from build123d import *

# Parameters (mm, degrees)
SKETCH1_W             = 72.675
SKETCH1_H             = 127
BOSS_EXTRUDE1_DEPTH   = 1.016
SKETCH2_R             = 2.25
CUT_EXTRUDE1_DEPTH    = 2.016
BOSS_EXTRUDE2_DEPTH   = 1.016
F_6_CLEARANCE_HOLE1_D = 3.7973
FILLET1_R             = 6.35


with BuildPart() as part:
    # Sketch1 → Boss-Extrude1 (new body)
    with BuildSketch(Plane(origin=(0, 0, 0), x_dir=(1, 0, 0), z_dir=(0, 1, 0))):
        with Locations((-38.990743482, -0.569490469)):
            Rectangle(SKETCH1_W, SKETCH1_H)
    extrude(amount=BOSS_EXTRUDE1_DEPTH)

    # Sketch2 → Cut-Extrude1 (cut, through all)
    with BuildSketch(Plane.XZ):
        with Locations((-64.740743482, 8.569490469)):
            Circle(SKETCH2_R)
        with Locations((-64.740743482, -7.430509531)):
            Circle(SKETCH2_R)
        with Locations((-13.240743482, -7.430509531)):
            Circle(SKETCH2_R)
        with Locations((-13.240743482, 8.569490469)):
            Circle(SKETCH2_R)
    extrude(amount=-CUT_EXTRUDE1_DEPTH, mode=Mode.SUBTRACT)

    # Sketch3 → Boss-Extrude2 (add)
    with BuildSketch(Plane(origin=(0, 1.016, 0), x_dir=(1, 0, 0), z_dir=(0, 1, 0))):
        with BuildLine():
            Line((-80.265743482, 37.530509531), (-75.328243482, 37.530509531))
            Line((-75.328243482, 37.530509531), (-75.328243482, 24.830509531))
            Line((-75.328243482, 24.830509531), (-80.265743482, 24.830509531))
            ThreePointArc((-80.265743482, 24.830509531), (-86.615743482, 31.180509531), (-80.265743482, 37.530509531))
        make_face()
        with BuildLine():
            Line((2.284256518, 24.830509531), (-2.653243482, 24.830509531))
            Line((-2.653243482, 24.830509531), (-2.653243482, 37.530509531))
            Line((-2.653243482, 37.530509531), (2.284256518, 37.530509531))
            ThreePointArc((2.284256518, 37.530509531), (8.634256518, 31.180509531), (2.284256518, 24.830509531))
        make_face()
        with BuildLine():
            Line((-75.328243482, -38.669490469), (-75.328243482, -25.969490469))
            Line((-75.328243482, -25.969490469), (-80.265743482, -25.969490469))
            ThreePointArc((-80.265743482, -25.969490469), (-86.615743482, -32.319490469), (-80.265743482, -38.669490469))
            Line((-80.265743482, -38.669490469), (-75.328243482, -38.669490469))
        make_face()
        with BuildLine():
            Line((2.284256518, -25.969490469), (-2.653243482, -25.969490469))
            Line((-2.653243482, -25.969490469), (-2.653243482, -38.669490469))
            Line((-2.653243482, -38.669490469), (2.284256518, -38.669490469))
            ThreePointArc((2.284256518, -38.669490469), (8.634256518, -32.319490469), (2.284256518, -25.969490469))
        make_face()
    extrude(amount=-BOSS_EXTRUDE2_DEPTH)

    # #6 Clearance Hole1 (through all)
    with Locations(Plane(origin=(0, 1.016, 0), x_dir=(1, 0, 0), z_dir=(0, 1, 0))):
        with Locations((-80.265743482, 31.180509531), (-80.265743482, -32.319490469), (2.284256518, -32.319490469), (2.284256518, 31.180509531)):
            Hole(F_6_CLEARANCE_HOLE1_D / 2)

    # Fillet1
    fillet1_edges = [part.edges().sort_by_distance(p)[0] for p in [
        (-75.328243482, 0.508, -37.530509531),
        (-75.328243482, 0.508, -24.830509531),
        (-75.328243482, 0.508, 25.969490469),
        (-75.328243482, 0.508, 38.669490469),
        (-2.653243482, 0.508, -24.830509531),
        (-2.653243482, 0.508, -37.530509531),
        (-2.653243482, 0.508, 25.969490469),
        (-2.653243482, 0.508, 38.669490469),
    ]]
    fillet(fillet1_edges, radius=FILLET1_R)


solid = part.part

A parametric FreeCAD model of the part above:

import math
import FreeCAD as App
import Part
import Sketcher
from FreeCAD import Vector
Q = App.Units.Quantity


def edges_at(feature, points):
    """Names of the edges that pass closest to the given points."""
    edges = feature.Shape.Edges
    near = lambda p: min(range(len(edges)), key=lambda i: edges[i].distToShape(Part.Vertex(*p))[0])
    return sorted({f"Edge{near(p) + 1}" for p in points})

doc = App.newDocument("Part")
params = doc.addObject("Spreadsheet::Sheet", "Params")
for row, (alias, value) in enumerate([
    ("sketch1_height", "5 in"),
    ("pad1_length", "0.04 in"),
    ("sketch3_radius", "0.25 in"),
    ("pad2_length", "0.04 in"),
    ("hole_diameter", "0.1495 in"),
    ("fillet_radius", "0.25 in"),
], start=1):
    params.set(f"A{row}", alias)
    params.set(f"B{row}", "=" + value)
    params.setAlias(f"B{row}", alias)

body = doc.addObject("PartDesign::Body", "Body")

# Sketch on XZ plane
sketch1 = body.newObject("Sketcher::SketchObject", "Sketch")
sketch1.AttachmentSupport = (doc.getObject("XZ_Plane"), [""])
sketch1.MapMode = "FlatFace"
sketch1.addGeometry(Part.LineSegment(Vector(-75, -63, 0), Vector(-75, 64, 0)), False)
sketch1.addGeometry(Part.LineSegment(Vector(-75, 64, 0), Vector(-3, 64, 0)), False)
sketch1.addGeometry(Part.LineSegment(Vector(-3, 64, 0), Vector(-3, -63, 0)), False)
sketch1.addGeometry(Part.LineSegment(Vector(-3, -63, 0), Vector(-75, -63, 0)), False)
sketch1.addConstraint(Sketcher.Constraint("Coincident", 0, 2, 1, 1))
sketch1.addConstraint(Sketcher.Constraint("Coincident", 1, 2, 2, 1))
sketch1.addConstraint(Sketcher.Constraint("Coincident", 2, 2, 3, 1))
sketch1.addConstraint(Sketcher.Constraint("Coincident", 3, 2, 0, 1))
sketch1.addConstraint(Sketcher.Constraint("Vertical", 0))
sketch1.addConstraint(Sketcher.Constraint("Horizontal", 1))
sketch1.addConstraint(Sketcher.Constraint("Vertical", 2))
sketch1.addConstraint(Sketcher.Constraint("Horizontal", 3))
sketch1.addConstraint(Sketcher.Constraint("DistanceY", 0, 1, 0, 2, Q("5 in")))
sketch1.addConstraint(Sketcher.Constraint("DistanceX", 1, 1, 1, 2, Q("72.675 mm")))
sketch1.addConstraint(Sketcher.Constraint("DistanceY", -1, 1, 0, 2, Q("64.06949 mm")))
sketch1.addConstraint(Sketcher.Constraint("DistanceX", 0, 2, -1, 1, Q("75.328243 mm")))
sketch1.setExpression("Constraints[8]", "Params.sketch1_height")
pad1 = body.newObject("PartDesign::Pad", "Pad")
pad1.Profile = sketch1
pad1.setExpression("Length", "Params.pad1_length")
pad1.Reversed = True

# Sketch on XZ plane
sketch2 = body.newObject("Sketcher::SketchObject", "Sketch001")
sketch2.AttachmentSupport = (doc.getObject("XZ_Plane"), [""])
sketch2.MapMode = "FlatFace"
sketch2.addGeometry(Part.Circle(Vector(-64.7, 8.6, 0), Vector(0, 0, 1), 2.2), False)
sketch2.addGeometry(Part.Circle(Vector(-64.7, -7.4, 0), Vector(0, 0, 1), 2.2), False)
sketch2.addGeometry(Part.Circle(Vector(-13.2, -7.4, 0), Vector(0, 0, 1), 2.2), False)
sketch2.addGeometry(Part.Circle(Vector(-13.2, 8.6, 0), Vector(0, 0, 1), 2.2), False)
sketch2.addConstraint(Sketcher.Constraint("Equal", 0, 1))
sketch2.addConstraint(Sketcher.Constraint("Equal", 1, 2))
sketch2.addConstraint(Sketcher.Constraint("Equal", 2, 3))
sketch2.addConstraint(Sketcher.Constraint("Horizontal", 1, 3, 2, 3))
sketch2.addConstraint(Sketcher.Constraint("Horizontal", 0, 3, 3, 3))
sketch2.addConstraint(Sketcher.Constraint("Vertical", 0, 3, 1, 3))
sketch2.addConstraint(Sketcher.Constraint("Vertical", 2, 3, 3, 3))
sketch2.addConstraint(Sketcher.Constraint("Diameter", 0, Q("4.5 mm")))
sketch2.addConstraint(Sketcher.Constraint("DistanceY", 1, 3, 0, 3, Q("16 mm")))
sketch2.addConstraint(Sketcher.Constraint("DistanceX", 1, 3, 2, 3, Q("51.5 mm")))
sketch2.addConstraint(Sketcher.Constraint("DistanceY", -1, 1, 0, 3, Q("8.56949 mm")))
sketch2.addConstraint(Sketcher.Constraint("DistanceX", 0, 3, -1, 1, Q("64.740743 mm")))
pocket1 = body.newObject("PartDesign::Pocket", "Pocket")
pocket1.Profile = sketch2
pocket1.Type = "ThroughAll"

# Sketch on XZ plane
sketch3 = body.newObject("Sketcher::SketchObject", "Sketch002")
sketch3.AttachmentSupport = (doc.getObject("XZ_Plane"), [""])
sketch3.MapMode = "FlatFace"
sketch3.AttachmentOffset = App.Placement(Vector(0, 0, -0.04 * 25.4), App.Rotation())
sketch3.addGeometry(Part.LineSegment(Vector(-75.3, -37.5, 0), Vector(-80.3, -37.5, 0)), False)
sketch3.addGeometry(Part.ArcOfCircle(Part.Circle(Vector(-80.3, -31.2, 0), Vector(0, 0, 1), 6.3), math.radians(90), math.radians(270)), False)
sketch3.addGeometry(Part.LineSegment(Vector(-80.3, -24.8, 0), Vector(-75.3, -24.8, 0)), False)
sketch3.addGeometry(Part.LineSegment(Vector(-75.3, -24.8, 0), Vector(-75.3, -37.5, 0)), False)
sketch3.addGeometry(Part.LineSegment(Vector(-2.7, -24.8, 0), Vector(2.3, -24.8, 0)), False)
sketch3.addGeometry(Part.ArcOfCircle(Part.Circle(Vector(2.3, -31.2, 0), Vector(0, 0, 1), 6.3), math.radians(-90), math.radians(90)), False)
sketch3.addGeometry(Part.LineSegment(Vector(2.3, -37.5, 0), Vector(-2.7, -37.5, 0)), False)
sketch3.addGeometry(Part.LineSegment(Vector(-2.7, -37.5, 0), Vector(-2.7, -24.8, 0)), False)
sketch3.addGeometry(Part.LineSegment(Vector(-75.3, 38.7, 0), Vector(-75.3, 26, 0)), False)
sketch3.addGeometry(Part.LineSegment(Vector(-75.3, 26, 0), Vector(-80.3, 26, 0)), False)
sketch3.addGeometry(Part.ArcOfCircle(Part.Circle(Vector(-80.3, 32.3, 0), Vector(0, 0, 1), 6.3), math.radians(90), math.radians(270)), False)
sketch3.addGeometry(Part.LineSegment(Vector(-80.3, 38.7, 0), Vector(-75.3, 38.7, 0)), False)
sketch3.addGeometry(Part.LineSegment(Vector(2.3, 26, 0), Vector(-2.7, 26, 0)), False)
sketch3.addGeometry(Part.LineSegment(Vector(-2.7, 26, 0), Vector(-2.7, 38.7, 0)), False)
sketch3.addGeometry(Part.LineSegment(Vector(-2.7, 38.7, 0), Vector(2.3, 38.7, 0)), False)
sketch3.addGeometry(Part.ArcOfCircle(Part.Circle(Vector(2.3, 32.3, 0), Vector(0, 0, 1), 6.3), math.radians(-90), math.radians(90)), False)
sketch3.addConstraint(Sketcher.Constraint("Tangent", 0, 2, 1, 2))
sketch3.addConstraint(Sketcher.Constraint("Tangent", 1, 1, 2, 1))
sketch3.addConstraint(Sketcher.Constraint("Coincident", 2, 2, 3, 1))
sketch3.addConstraint(Sketcher.Constraint("Coincident", 3, 2, 0, 1))
sketch3.addConstraint(Sketcher.Constraint("Tangent", 4, 2, 5, 2))
sketch3.addConstraint(Sketcher.Constraint("Tangent", 5, 1, 6, 1))
sketch3.addConstraint(Sketcher.Constraint("Coincident", 6, 2, 7, 1))
sketch3.addConstraint(Sketcher.Constraint("Coincident", 7, 2, 4, 1))
sketch3.addConstraint(Sketcher.Constraint("Coincident", 8, 2, 9, 1))
sketch3.addConstraint(Sketcher.Constraint("Tangent", 9, 2, 10, 2))
sketch3.addConstraint(Sketcher.Constraint("Tangent", 10, 1, 11, 1))
sketch3.addConstraint(Sketcher.Constraint("Coincident", 11, 2, 8, 1))
sketch3.addConstraint(Sketcher.Constraint("Coincident", 12, 2, 13, 1))
sketch3.addConstraint(Sketcher.Constraint("Coincident", 13, 2, 14, 1))
sketch3.addConstraint(Sketcher.Constraint("Tangent", 14, 2, 15, 2))
sketch3.addConstraint(Sketcher.Constraint("Tangent", 15, 1, 12, 1))
sketch3.addConstraint(Sketcher.Constraint("Horizontal", 0))
sketch3.addConstraint(Sketcher.Constraint("Horizontal", 2))
sketch3.addConstraint(Sketcher.Constraint("Vertical", 3))
sketch3.addConstraint(Sketcher.Constraint("Horizontal", 4))
sketch3.addConstraint(Sketcher.Constraint("Horizontal", 6))
sketch3.addConstraint(Sketcher.Constraint("Vertical", 7))
sketch3.addConstraint(Sketcher.Constraint("Vertical", 8))
sketch3.addConstraint(Sketcher.Constraint("Horizontal", 9))
sketch3.addConstraint(Sketcher.Constraint("Horizontal", 11))
sketch3.addConstraint(Sketcher.Constraint("Horizontal", 12))
sketch3.addConstraint(Sketcher.Constraint("Vertical", 13))
sketch3.addConstraint(Sketcher.Constraint("Horizontal", 14))
sketch3.addConstraint(Sketcher.Constraint("Equal", 1, 5))
sketch3.addConstraint(Sketcher.Constraint("Equal", 5, 10))
sketch3.addConstraint(Sketcher.Constraint("Equal", 10, 15))
sketch3.addConstraint(Sketcher.Constraint("Horizontal", 1, 3, 5, 3))
sketch3.addConstraint(Sketcher.Constraint("Horizontal", 10, 3, 15, 3))
sketch3.addConstraint(Sketcher.Constraint("Vertical", 1, 3, 10, 3))
sketch3.addConstraint(Sketcher.Constraint("Vertical", 5, 3, 15, 3))
sketch3.addConstraint(Sketcher.Constraint("Vertical", 3, 2, 8, 2))
sketch3.addConstraint(Sketcher.Constraint("Vertical", 7, 2, 12, 2))
sketch3.addConstraint(Sketcher.Constraint("Equal", 2, 4))
sketch3.addConstraint(Sketcher.Constraint("Radius", 1, Q("0.25 in")))
sketch3.addConstraint(Sketcher.Constraint("DistanceY", 2, 2, 8, 2, Q("2 in")))
sketch3.addConstraint(Sketcher.Constraint("DistanceX", 1, 3, 5, 3, Q("3.25 in")))
sketch3.addConstraint(Sketcher.Constraint("DistanceX", 0, 2, 0, 1, Q("4.9375 mm")))
sketch3.addConstraint(Sketcher.Constraint("DistanceY", 1, 3, -1, 1, Q("31.18051 mm")))
sketch3.addConstraint(Sketcher.Constraint("DistanceX", 1, 3, -1, 1, Q("80.265743 mm")))
sketch3.setExpression("Constraints[38]", "Params.sketch3_radius")
pad2 = body.newObject("PartDesign::Pad", "Pad001")
pad2.Profile = sketch3
pad2.setExpression("Length", "Params.pad2_length")

# Sketch on XZ plane
sketch4 = body.newObject("Sketcher::SketchObject", "Sketch003")
sketch4.AttachmentSupport = (doc.getObject("XZ_Plane"), [""])
sketch4.MapMode = "FlatFace"
sketch4.AttachmentOffset = App.Placement(Vector(0, 0, -0.04 * 25.4), App.Rotation())
sketch4.addGeometry(Part.Circle(Vector(-80.3, -31.2, 0), Vector(0, 0, 1), 1.9), False)
sketch4.addGeometry(Part.Circle(Vector(-80.3, 32.3, 0), Vector(0, 0, 1), 1.9), False)
sketch4.addGeometry(Part.Circle(Vector(2.3, 32.3, 0), Vector(0, 0, 1), 1.9), False)
sketch4.addGeometry(Part.Circle(Vector(2.3, -31.2, 0), Vector(0, 0, 1), 1.9), False)
sketch4.addConstraint(Sketcher.Constraint("Equal", 0, 1))
sketch4.addConstraint(Sketcher.Constraint("Equal", 1, 2))
sketch4.addConstraint(Sketcher.Constraint("Equal", 2, 3))
sketch4.addConstraint(Sketcher.Constraint("Horizontal", 1, 3, 2, 3))
sketch4.addConstraint(Sketcher.Constraint("Horizontal", 0, 3, 3, 3))
sketch4.addConstraint(Sketcher.Constraint("Vertical", 0, 3, 1, 3))
sketch4.addConstraint(Sketcher.Constraint("Vertical", 2, 3, 3, 3))
sketch4.addConstraint(Sketcher.Constraint("Diameter", 0, Q("0.1495 in")))
sketch4.addConstraint(Sketcher.Constraint("DistanceY", 0, 3, 1, 3, Q("2.5 in")))
sketch4.addConstraint(Sketcher.Constraint("DistanceX", 1, 3, 2, 3, Q("3.25 in")))
sketch4.addConstraint(Sketcher.Constraint("DistanceY", 0, 3, -1, 1, Q("31.18051 mm")))
sketch4.addConstraint(Sketcher.Constraint("DistanceX", 0, 3, -1, 1, Q("80.265743 mm")))
doc.recompute()
hole = body.newObject("PartDesign::Hole", "Hole")
hole.Profile = sketch4
hole.ThreadType = "None"
hole.setExpression("Diameter", "Params.hole_diameter")
hole.DepthType = "ThroughAll"
hole.Reversed = True
doc.recompute()

fillet = body.newObject("PartDesign::Fillet", "Fillet")
fillet.Base = (hole, edges_at(hole, [
    (-75.328, 0.508, -37.531),
    (-75.328, 0.508, -24.831),
    (-75.328, 0.508, 25.969),
    (-75.328, 0.508, 38.669),
    (-2.653, 0.508, -24.831),
    (-2.653, 0.508, -37.531),
    (-2.653, 0.508, 25.969),
    (-2.653, 0.508, 38.669),
]))
fillet.setExpression("Radius", "Params.fillet_radius")

doc.recompute()
